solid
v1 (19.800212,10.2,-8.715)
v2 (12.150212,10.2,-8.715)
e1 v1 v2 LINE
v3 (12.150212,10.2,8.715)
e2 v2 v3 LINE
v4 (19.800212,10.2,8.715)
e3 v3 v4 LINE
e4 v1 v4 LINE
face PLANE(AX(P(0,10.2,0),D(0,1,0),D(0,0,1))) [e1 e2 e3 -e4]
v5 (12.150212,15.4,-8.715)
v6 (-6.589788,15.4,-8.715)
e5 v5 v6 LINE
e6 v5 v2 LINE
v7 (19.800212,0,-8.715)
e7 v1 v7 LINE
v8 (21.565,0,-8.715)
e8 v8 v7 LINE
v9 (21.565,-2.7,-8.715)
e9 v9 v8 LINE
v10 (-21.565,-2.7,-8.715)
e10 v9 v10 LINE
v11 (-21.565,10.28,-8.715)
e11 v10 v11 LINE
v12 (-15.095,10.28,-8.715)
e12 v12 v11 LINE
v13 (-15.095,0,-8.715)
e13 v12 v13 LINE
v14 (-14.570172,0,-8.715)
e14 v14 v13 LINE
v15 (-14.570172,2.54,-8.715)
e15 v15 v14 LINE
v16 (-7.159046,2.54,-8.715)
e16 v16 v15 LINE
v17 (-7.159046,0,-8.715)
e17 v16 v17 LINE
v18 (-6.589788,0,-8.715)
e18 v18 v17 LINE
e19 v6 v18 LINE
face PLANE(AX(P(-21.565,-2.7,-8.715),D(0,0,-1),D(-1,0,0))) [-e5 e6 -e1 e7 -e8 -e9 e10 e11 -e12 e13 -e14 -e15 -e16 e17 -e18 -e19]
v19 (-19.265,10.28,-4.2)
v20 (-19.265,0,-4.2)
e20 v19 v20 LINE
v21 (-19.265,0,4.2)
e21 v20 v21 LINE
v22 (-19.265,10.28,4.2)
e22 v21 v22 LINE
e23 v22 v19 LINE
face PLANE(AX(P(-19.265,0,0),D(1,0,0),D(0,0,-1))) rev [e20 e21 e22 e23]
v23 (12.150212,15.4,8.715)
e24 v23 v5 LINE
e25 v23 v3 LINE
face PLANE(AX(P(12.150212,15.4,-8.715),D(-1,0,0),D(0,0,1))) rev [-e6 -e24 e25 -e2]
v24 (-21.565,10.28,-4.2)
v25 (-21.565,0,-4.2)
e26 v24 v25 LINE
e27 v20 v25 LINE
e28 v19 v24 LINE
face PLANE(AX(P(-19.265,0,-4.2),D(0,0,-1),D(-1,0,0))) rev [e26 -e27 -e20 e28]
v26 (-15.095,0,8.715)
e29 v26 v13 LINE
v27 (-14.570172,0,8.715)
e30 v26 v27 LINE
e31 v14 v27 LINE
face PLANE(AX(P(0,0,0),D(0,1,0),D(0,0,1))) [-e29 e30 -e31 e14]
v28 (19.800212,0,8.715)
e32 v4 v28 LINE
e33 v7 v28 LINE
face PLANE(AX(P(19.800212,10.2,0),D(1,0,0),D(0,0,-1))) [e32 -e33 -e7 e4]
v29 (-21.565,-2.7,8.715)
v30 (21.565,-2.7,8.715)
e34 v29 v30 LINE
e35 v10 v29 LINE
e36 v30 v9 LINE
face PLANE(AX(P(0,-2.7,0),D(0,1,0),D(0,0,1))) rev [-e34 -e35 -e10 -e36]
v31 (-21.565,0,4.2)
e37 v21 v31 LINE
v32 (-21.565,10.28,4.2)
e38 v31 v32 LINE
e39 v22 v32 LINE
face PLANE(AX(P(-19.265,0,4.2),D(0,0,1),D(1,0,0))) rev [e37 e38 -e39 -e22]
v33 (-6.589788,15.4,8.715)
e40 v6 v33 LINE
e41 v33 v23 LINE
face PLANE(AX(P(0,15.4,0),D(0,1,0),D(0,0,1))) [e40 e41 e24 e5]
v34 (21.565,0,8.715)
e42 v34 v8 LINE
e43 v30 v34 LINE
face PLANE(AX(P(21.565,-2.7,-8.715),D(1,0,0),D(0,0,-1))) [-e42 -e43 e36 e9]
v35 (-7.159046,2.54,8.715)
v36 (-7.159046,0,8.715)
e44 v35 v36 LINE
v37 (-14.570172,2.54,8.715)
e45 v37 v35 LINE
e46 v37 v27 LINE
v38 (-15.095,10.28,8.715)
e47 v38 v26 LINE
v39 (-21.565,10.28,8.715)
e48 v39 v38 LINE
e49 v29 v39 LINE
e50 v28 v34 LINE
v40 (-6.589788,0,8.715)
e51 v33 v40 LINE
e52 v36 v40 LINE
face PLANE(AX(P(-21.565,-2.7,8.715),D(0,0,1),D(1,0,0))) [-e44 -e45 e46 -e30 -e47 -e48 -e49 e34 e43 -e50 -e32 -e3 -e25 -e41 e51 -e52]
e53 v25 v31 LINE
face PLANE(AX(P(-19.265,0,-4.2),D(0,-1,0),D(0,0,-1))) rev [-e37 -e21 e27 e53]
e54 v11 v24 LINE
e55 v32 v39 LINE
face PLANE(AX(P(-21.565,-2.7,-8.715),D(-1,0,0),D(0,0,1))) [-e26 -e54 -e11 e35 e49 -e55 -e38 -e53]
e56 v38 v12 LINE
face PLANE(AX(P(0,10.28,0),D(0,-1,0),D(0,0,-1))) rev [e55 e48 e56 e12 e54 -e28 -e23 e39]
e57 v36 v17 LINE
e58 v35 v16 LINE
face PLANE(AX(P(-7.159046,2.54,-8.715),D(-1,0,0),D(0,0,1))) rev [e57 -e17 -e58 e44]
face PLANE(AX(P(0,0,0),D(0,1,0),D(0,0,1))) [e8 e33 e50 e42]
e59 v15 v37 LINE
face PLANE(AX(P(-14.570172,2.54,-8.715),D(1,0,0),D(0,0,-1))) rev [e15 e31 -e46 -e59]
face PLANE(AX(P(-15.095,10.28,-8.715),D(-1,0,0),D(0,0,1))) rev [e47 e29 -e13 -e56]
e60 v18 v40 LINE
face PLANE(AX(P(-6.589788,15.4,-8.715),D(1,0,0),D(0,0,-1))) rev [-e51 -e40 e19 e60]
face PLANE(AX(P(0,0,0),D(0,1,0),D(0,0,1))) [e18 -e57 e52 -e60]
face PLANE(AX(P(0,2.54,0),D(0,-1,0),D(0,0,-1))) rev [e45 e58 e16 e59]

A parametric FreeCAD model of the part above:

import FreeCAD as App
import Part
import Sketcher

doc = App.newDocument("Part")
params = doc.addObject("Spreadsheet::Sheet", "Params")
for row, (alias, value) in enumerate([
    ("sketch1_width", "43.13 mm"),
    ("sketch1_height", "17.43 mm"),
    ("pad1_length", "2.7 mm"),
    ("sketch2_width", "6.47 mm"),
    ("sketch2_height", "17.43 mm"),
    ("pad2_length", "10.28 mm"),
    ("sketch3_width", "7.65 mm"),
    ("sketch3_height", "17.43 mm"),
    ("pad3_length", "10.2 mm"),
    ("sketch4_width", "18.74 mm"),
    ("sketch4_height", "17.43 mm"),
    ("pad4_length", "15.4 mm"),
    ("sketch5_height", "17.43 mm"),
    ("pad5_length", "2.54 mm"),
    ("sketch6_height", "8.4 mm"),
    ("sketch6_width", "10.28 mm"),
    ("pocket1_length", "2.3 mm"),
], start=1):
    params.set(f"A{row}", alias)
    params.set(f"B{row}", "=" + value)
    params.setAlias(f"B{row}", alias)

body = doc.addObject("PartDesign::Body", "Body")

# Sketch on XZ plane
sketch1 = body.newObject("Sketcher::SketchObject", "Sketch")
sketch1.AttachmentSupport = (doc.getObject("XZ_Plane"), [""])
sketch1.MapMode = "FlatFace"
sketch1.addGeometry([
    Part.LineSegment(App.Vector(-22, -9, 0), App.Vector(-22, 9, 0)),
    Part.LineSegment(App.Vector(-22, 9, 0), App.Vector(22, 9, 0)),
    Part.LineSegment(App.Vector(22, 9, 0), App.Vector(22, -9, 0)),
    Part.LineSegment(App.Vector(22, -9, 0), App.Vector(-22, -9, 0)),
], False)
sketch1.addConstraint([
    Sketcher.Constraint("Coincident", 0, 2, 1, 1),
    Sketcher.Constraint("Coincident", 1, 2, 2, 1),
    Sketcher.Constraint("Coincident", 2, 2, 3, 1),
    Sketcher.Constraint("Coincident", 3, 2, 0, 1),
    Sketcher.Constraint("Vertical", 0),
    Sketcher.Constraint("Horizontal", 1),
    Sketcher.Constraint("Vertical", 2),
    Sketcher.Constraint("Horizontal", 3),
    Sketcher.Constraint("Symmetric", 0, 2, 2, 2, -1, 1),
    Sketcher.Constraint("DistanceX", 1, 1, 1, 2, 43.13),
    Sketcher.Constraint("DistanceY", 0, 1, 0, 2, 17.43),
])
sketch1.setExpression("Constraints[9]", "Params.sketch1_width")
sketch1.setExpression("Constraints[10]", "Params.sketch1_height")
pad1 = body.newObject("PartDesign::Pad", "Pad")
pad1.Profile = sketch1
pad1.setExpression("Length", "Params.pad1_length")

# Sketch on XZ plane
sketch2 = body.newObject("Sketcher::SketchObject", "Sketch001")
sketch2.AttachmentSupport = (doc.getObject("XZ_Plane"), [""])
sketch2.MapMode = "FlatFace"
sketch2.addGeometry([
    Part.LineSegment(App.Vector(-22, -9, 0), App.Vector(-22, 9, 0)),
    Part.LineSegment(App.Vector(-22, 9, 0), App.Vector(-15, 9, 0)),
    Part.LineSegment(App.Vector(-15, 9, 0), App.Vector(-15, -9, 0)),
    Part.LineSegment(App.Vector(-15, -9, 0), App.Vector(-22, -9, 0)),
], False)
sketch2.addConstraint([
    Sketcher.Constraint("Coincident", 0, 2, 1, 1),
    Sketcher.Constraint("Coincident", 1, 2, 2, 1),
    Sketcher.Constraint("Coincident", 2, 2, 3, 1),
    Sketcher.Constraint("Coincident", 3, 2, 0, 1),
    Sketcher.Constraint("Vertical", 0),
    Sketcher.Constraint("Horizontal", 1),
    Sketcher.Constraint("Vertical", 2),
    Sketcher.Constraint("Horizontal", 3),
    Sketcher.Constraint("DistanceX", 1, 1, 1, 2, 6.47),
    Sketcher.Constraint("DistanceY", 0, 1, 0, 2, 17.43),
    Sketcher.Constraint("DistanceX", 0, 2, -1, 1, 21.565),
    Sketcher.Constraint("DistanceY", -1, 1, 0, 2, 8.715),
])
sketch2.setExpression("Constraints[8]", "Params.sketch2_width")
sketch2.setExpression("Constraints[9]", "Params.sketch2_height")
pad2 = body.newObject("PartDesign::Pad", "Pad001")
pad2.Profile = sketch2
pad2.setExpression("Length", "Params.pad2_length")
pad2.Reversed = True

# Sketch on XZ plane
sketch3 = body.newObject("Sketcher::SketchObject", "Sketch002")
sketch3.AttachmentSupport = (doc.getObject("XZ_Plane"), [""])
sketch3.MapMode = "FlatFace"
sketch3.addGeometry([
    Part.LineSegment(App.Vector(12, -9, 0), App.Vector(12, 9, 0)),
    Part.LineSegment(App.Vector(12, 9, 0), App.Vector(20, 9, 0)),
    Part.LineSegment(App.Vector(20, 9, 0), App.Vector(20, -9, 0)),
    Part.LineSegment(App.Vector(20, -9, 0), App.Vector(12, -9, 0)),
], False)
sketch3.addConstraint([
    Sketcher.Constraint("Coincident", 0, 2, 1, 1),
    Sketcher.Constraint("Coincident", 1, 2, 2, 1),
    Sketcher.Constraint("Coincident", 2, 2, 3, 1),
    Sketcher.Constraint("Coincident", 3, 2, 0, 1),
    Sketcher.Constraint("Vertical", 0),
    Sketcher.Constraint("Horizontal", 1),
    Sketcher.Constraint("Vertical", 2),
    Sketcher.Constraint("Horizontal", 3),
    Sketcher.Constraint("DistanceX", 1, 1, 1, 2, 7.65),
    Sketcher.Constraint("DistanceY", 0, 1, 0, 2, 17.43),
    Sketcher.Constraint("DistanceY", -1, 1, 0, 2, 8.715),
    Sketcher.Constraint("DistanceX", -1, 1, 0, 2, 12.150212),
])
sketch3.setExpression("Constraints[8]", "Params.sketch3_width")
sketch3.setExpression("Constraints[9]", "Params.sketch3_height")
pad3 = body.newObject("PartDesign::Pad", "Pad002")
pad3.Profile = sketch3
pad3.setExpression("Length", "Params.pad3_length")
pad3.Reversed = True

# Sketch on XZ plane
sketch4 = body.newObject("Sketcher::SketchObject", "Sketch003")
sketch4.AttachmentSupport = (doc.getObject("XZ_Plane"), [""])
sketch4.MapMode = "FlatFace"
sketch4.addGeometry([
    Part.LineSegment(App.Vector(-7, -9, 0), App.Vector(-7, 9, 0)),
    Part.LineSegment(App.Vector(-7, 9, 0), App.Vector(12, 9, 0)),
    Part.LineSegment(App.Vector(12, 9, 0), App.Vector(12, -9, 0)),
    Part.LineSegment(App.Vector(12, -9, 0), App.Vector(-7, -9, 0)),
], False)
sketch4.addConstraint([
    Sketcher.Constraint("Coincident", 0, 2, 1, 1),
    Sketcher.Constraint("Coincident", 1, 2, 2, 1),
    Sketcher.Constraint("Coincident", 2, 2, 3, 1),
    Sketcher.Constraint("Coincident", 3, 2, 0, 1),
    Sketcher.Constraint("Vertical", 0),
    Sketcher.Constraint("Horizontal", 1),
    Sketcher.Constraint("Vertical", 2),
    Sketcher.Constraint("Horizontal", 3),
    Sketcher.Constraint("DistanceX", 1, 1, 1, 2, 18.74),
    Sketcher.Constraint("DistanceY", 0, 1, 0, 2, 17.43),
    Sketcher.Constraint("DistanceY", -1, 1, 0, 2, 8.715),
    Sketcher.Constraint("DistanceX", 0, 2, -1, 1, 6.589788),
])
sketch4.setExpression("Constraints[8]", "Params.sketch4_width")
sketch4.setExpression("Constraints[9]", "Params.sketch4_height")
pad4 = body.newObject("PartDesign::Pad", "Pad003")
pad4.Profile = sketch4
pad4.setExpression("Length", "Params.pad4_length")
pad4.Reversed = True

# Sketch on XZ plane
sketch5 = body.newObject("Sketcher::SketchObject", "Sketch004")
sketch5.AttachmentSupport = (doc.getObject("XZ_Plane"), [""])
sketch5.MapMode = "FlatFace"
sketch5.addGeometry([
    Part.LineSegment(App.Vector(-15, -9, 0), App.Vector(-15, 9, 0)),
    Part.LineSegment(App.Vector(-15, 9, 0), App.Vector(-7, 9, 0)),
    Part.LineSegment(App.Vector(-7, 9, 0), App.Vector(-7, -9, 0)),
    Part.LineSegment(App.Vector(-7, -9, 0), App.Vector(-15, -9, 0)),
], False)
sketch5.addConstraint([
    Sketcher.Constraint("Coincident", 0, 2, 1, 1),
    Sketcher.Constraint("Coincident", 1, 2, 2, 1),
    Sketcher.Constraint("Coincident", 2, 2, 3, 1),
    Sketcher.Constraint("Coincident", 3, 2, 0, 1),
    Sketcher.Constraint("Vertical", 0),
    Sketcher.Constraint("Horizontal", 1),
    Sketcher.Constraint("Vertical", 2),
    Sketcher.Constraint("Horizontal", 3),
    Sketcher.Constraint("DistanceY", 0, 1, 0, 2, 17.43),
    Sketcher.Constraint("DistanceY", -1, 1, 0, 2, 8.715),
    Sketcher.Constraint("DistanceX", 1, 1, 1, 2, 7.411125),
    Sketcher.Constraint("DistanceX", 0, 2, -1, 1, 14.570172),
])
sketch5.setExpression("Constraints[8]", "Params.sketch5_height")
pad5 = body.newObject("PartDesign::Pad", "Pad004")
pad5.Profile = sketch5
pad5.setExpression("Length", "Params.pad5_length")
pad5.Reversed = True

# Sketch on YZ plane
sketch6 = body.newObject("Sketcher::SketchObject", "Sketch005")
sketch6.AttachmentSupport = (doc.getObject("YZ_Plane"), [""])
sketch6.MapMode = "FlatFace"
sketch6.AttachmentOffset = App.Placement(App.Vector(0, 0, -21.565), App.Rotation())
sketch6.addGeometry([
    Part.LineSegment(App.Vector(10, -4, 0), App.Vector(0, -4, 0)),
    Part.LineSegment(App.Vector(0, -4, 0), App.Vector(0, 4, 0)),
    Part.LineSegment(App.Vector(0, 4, 0), App.Vector(10, 4, 0)),
    Part.LineSegment(App.Vector(10, 4, 0), App.Vector(10, -4, 0)),
], False)
sketch6.addConstraint([
    Sketcher.Constraint("Coincident", 0, 2, 1, 1),
    Sketcher.Constraint("Coincident", 1, 2, 2, 1),
    Sketcher.Constraint("Coincident", 2, 2, 3, 1),
    Sketcher.Constraint("Coincident", 3, 2, 0, 1),
    Sketcher.Constraint("Horizontal", 0),
    Sketcher.Constraint("Vertical", 1),
    Sketcher.Constraint("Horizontal", 2),
    Sketcher.Constraint("Vertical", 3),
    Sketcher.Constraint("Symmetric", 0, 2, 1, 2, -1, 1),
    Sketcher.Constraint("DistanceY", 1, 1, 1, 2, 8.4),
    Sketcher.Constraint("DistanceX", 0, 2, 0, 1, 10.28),
])
sketch6.setExpression("Constraints[9]", "Params.sketch6_height")
sketch6.setExpression("Constraints[10]", "Params.sketch6_width")
pocket1 = body.newObject("PartDesign::Pocket", "Pocket")
pocket1.Profile = sketch6
pocket1.setExpression("Length", "Params.pocket1_length")
pocket1.Reversed = True

doc.recompute()
